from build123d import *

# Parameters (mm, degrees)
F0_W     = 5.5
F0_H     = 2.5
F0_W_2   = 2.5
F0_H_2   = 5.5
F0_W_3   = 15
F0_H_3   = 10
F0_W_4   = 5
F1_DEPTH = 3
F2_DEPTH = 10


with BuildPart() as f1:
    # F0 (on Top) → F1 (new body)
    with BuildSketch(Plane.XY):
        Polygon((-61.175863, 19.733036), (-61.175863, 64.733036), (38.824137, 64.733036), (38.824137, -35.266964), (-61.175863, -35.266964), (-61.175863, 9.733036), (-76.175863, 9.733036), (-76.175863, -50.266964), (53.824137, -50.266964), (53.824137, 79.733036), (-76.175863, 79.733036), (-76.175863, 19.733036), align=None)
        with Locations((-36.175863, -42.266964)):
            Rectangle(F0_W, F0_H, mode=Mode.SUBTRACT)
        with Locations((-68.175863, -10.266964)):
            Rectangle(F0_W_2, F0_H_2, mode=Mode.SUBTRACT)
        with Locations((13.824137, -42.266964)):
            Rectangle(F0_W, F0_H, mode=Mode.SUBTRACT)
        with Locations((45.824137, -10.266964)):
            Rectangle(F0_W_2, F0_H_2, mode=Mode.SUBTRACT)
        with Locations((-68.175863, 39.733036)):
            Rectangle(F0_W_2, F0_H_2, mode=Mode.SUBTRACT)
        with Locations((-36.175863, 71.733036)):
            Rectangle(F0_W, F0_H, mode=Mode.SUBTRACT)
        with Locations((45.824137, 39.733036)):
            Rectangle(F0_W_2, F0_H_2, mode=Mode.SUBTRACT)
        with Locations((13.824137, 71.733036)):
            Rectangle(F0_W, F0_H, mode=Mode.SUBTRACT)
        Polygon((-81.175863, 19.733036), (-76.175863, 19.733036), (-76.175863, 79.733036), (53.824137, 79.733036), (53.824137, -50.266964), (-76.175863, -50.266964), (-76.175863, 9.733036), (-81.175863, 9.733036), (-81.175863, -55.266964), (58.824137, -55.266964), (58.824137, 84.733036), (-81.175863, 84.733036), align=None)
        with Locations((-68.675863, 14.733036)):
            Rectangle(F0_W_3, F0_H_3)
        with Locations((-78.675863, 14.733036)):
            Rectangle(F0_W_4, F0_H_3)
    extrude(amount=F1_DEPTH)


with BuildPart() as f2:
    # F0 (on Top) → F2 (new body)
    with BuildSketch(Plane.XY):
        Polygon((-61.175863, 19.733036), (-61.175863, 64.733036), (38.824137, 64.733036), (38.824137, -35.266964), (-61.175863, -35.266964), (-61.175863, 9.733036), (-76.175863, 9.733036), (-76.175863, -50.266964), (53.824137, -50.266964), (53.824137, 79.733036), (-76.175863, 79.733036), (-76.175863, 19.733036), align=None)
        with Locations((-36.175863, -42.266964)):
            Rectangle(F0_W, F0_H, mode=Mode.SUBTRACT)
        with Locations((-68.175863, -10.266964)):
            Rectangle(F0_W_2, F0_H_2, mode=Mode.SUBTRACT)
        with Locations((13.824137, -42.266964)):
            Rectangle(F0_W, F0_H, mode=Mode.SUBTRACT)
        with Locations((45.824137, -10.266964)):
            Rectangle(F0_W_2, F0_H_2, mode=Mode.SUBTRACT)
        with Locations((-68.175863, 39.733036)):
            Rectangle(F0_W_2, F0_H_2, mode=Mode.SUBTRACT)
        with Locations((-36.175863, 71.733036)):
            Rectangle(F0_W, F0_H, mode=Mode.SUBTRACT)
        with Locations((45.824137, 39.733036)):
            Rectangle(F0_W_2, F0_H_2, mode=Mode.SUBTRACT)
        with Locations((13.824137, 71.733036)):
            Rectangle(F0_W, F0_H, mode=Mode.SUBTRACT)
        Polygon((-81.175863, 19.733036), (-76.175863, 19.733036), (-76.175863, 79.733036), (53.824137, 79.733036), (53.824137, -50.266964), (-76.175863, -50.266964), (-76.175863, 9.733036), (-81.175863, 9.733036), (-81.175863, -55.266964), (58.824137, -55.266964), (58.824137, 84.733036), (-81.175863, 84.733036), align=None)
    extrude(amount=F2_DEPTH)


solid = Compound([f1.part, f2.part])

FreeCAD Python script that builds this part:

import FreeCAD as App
import Part
import Sketcher


def add_polygon(sketch, points):
    """Adds a closed chain of lines whose ends are joined by coincident constraints."""
    first, n = sketch.GeometryCount, len(points)
    for a, b in zip(points, points[1:] + points[:1]):
        sketch.addGeometry(Part.LineSegment(App.Vector(*a, 0), App.Vector(*b, 0)), False)
    for i in range(n):
        sketch.addConstraint(Sketcher.Constraint("Coincident", first + i, 2, first + (i + 1) % n, 1))

doc = App.newDocument("Part")
body = doc.addObject("PartDesign::Body", "Body")

# Sketch on XY plane
sketch1 = body.newObject("Sketcher::SketchObject", "Sketch")
sketch1.AttachmentSupport = (doc.getObject("XY_Plane"), [""])
sketch1.MapMode = "FlatFace"
add_polygon(sketch1, [(-81.175863, -55.266964), (58.824137, -55.266964), (58.824137, 84.733036), (-81.175863, 84.733036)])  # lines 0-3
add_polygon(sketch1, [(-61.175863, 64.733036), (38.824137, 64.733036), (38.824137, -35.266964), (-61.175863, -35.266964)])  # lines 4-7
add_polygon(sketch1, [(-33.425863, -43.516964), (-38.925863, -43.516964), (-38.925863, -41.016964), (-33.425863, -41.016964)])  # lines 8-11
add_polygon(sketch1, [(-66.925863, -13.016964), (-69.425863, -13.016964), (-69.425863, -7.516964), (-66.925863, -7.516964)])  # lines 12-15
add_polygon(sketch1, [(16.574137, -43.516964), (11.074137, -43.516964), (11.074137, -41.016964), (16.574137, -41.016964)])  # lines 16-19
add_polygon(sketch1, [(47.074137, -13.016964), (44.574137, -13.016964), (44.574137, -7.516964), (47.074137, -7.516964)])  # lines 20-23
add_polygon(sketch1, [(-66.925863, 36.983036), (-69.425863, 36.983036), (-69.425863, 42.483036), (-66.925863, 42.483036)])  # lines 24-27
add_polygon(sketch1, [(-33.425863, 70.483036), (-38.925863, 70.483036), (-38.925863, 72.983036), (-33.425863, 72.983036)])  # lines 28-31
add_polygon(sketch1, [(47.074137, 36.983036), (44.574137, 36.983036), (44.574137, 42.483036), (47.074137, 42.483036)])  # lines 32-35
add_polygon(sketch1, [(16.574137, 70.483036), (11.074137, 70.483036), (11.074137, 72.983036), (16.574137, 72.983036)])  # lines 36-39
sketch1.addConstraint(Sketcher.Constraint("Horizontal", 0))
sketch1.addConstraint(Sketcher.Constraint("Vertical", 1))
sketch1.addConstraint(Sketcher.Constraint("Horizontal", 2))
sketch1.addConstraint(Sketcher.Constraint("Vertical", 3))
sketch1.addConstraint(Sketcher.Constraint("Horizontal", 4))
sketch1.addConstraint(Sketcher.Constraint("Vertical", 5))
sketch1.addConstraint(Sketcher.Constraint("Horizontal", 6))
sketch1.addConstraint(Sketcher.Constraint("Vertical", 7))
sketch1.addConstraint(Sketcher.Constraint("Horizontal", 8))
sketch1.addConstraint(Sketcher.Constraint("Vertical", 9))
sketch1.addConstraint(Sketcher.Constraint("Horizontal", 10))
sketch1.addConstraint(Sketcher.Constraint("Vertical", 11))
sketch1.addConstraint(Sketcher.Constraint("Horizontal", 12))
sketch1.addConstraint(Sketcher.Constraint("Vertical", 13))
sketch1.addConstraint(Sketcher.Constraint("Horizontal", 14))
sketch1.addConstraint(Sketcher.Constraint("Vertical", 15))
sketch1.addConstraint(Sketcher.Constraint("Horizontal", 16))
sketch1.addConstraint(Sketcher.Constraint("Vertical", 17))
sketch1.addConstraint(Sketcher.Constraint("Horizontal", 18))
sketch1.addConstraint(Sketcher.Constraint("Vertical", 19))
sketch1.addConstraint(Sketcher.Constraint("Horizontal", 20))
sketch1.addConstraint(Sketcher.Constraint("Vertical", 21))
sketch1.addConstraint(Sketcher.Constraint("Horizontal", 22))
sketch1.addConstraint(Sketcher.Constraint("Vertical", 23))
sketch1.addConstraint(Sketcher.Constraint("Horizontal", 24))
sketch1.addConstraint(Sketcher.Constraint("Vertical", 25))
sketch1.addConstraint(Sketcher.Constraint("Horizontal", 26))
sketch1.addConstraint(Sketcher.Constraint("Vertical", 27))
sketch1.addConstraint(Sketcher.Constraint("Horizontal", 28))
sketch1.addConstraint(Sketcher.Constraint("Vertical", 29))
sketch1.addConstraint(Sketcher.Constraint("Horizontal", 30))
sketch1.addConstraint(Sketcher.Constraint("Vertical", 31))
sketch1.addConstraint(Sketcher.Constraint("Horizontal", 32))
sketch1.addConstraint(Sketcher.Constraint("Vertical", 33))
sketch1.addConstraint(Sketcher.Constraint("Horizontal", 34))
sketch1.addConstraint(Sketcher.Constraint("Vertical", 35))
sketch1.addConstraint(Sketcher.Constraint("Horizontal", 36))
sketch1.addConstraint(Sketcher.Constraint("Vertical", 37))
sketch1.addConstraint(Sketcher.Constraint("Horizontal", 38))
sketch1.addConstraint(Sketcher.Constraint("Vertical", 39))
sketch1.addConstraint(Sketcher.Constraint("Horizontal", 11, 2, 16, 2))
sketch1.addConstraint(Sketcher.Constraint("Horizontal", 10, 2, 17, 2))
sketch1.addConstraint(Sketcher.Constraint("Horizontal", 15, 2, 20, 2))
sketch1.addConstraint(Sketcher.Constraint("Horizontal", 14, 2, 21, 2))
sketch1.addConstraint(Sketcher.Constraint("Horizontal", 27, 2, 32, 2))
sketch1.addConstraint(Sketcher.Constraint("Horizontal", 26, 2, 33, 2))
sketch1.addConstraint(Sketcher.Constraint("Horizontal", 31, 2, 36, 2))
sketch1.addConstraint(Sketcher.Constraint("Horizontal", 30, 2, 37, 2))
sketch1.addConstraint(Sketcher.Constraint("Vertical", 13, 2, 24, 2))
sketch1.addConstraint(Sketcher.Constraint("Vertical", 15, 2, 26, 2))
sketch1.addConstraint(Sketcher.Constraint("Vertical", 9, 2, 28, 2))
sketch1.addConstraint(Sketcher.Constraint("Vertical", 11, 2, 30, 2))
sketch1.addConstraint(Sketcher.Constraint("Vertical", 21, 2, 32, 2))
sketch1.addConstraint(Sketcher.Constraint("Vertical", 23, 2, 34, 2))
sketch1.addConstraint(Sketcher.Constraint("Vertical", 17, 2, 36, 2))
sketch1.addConstraint(Sketcher.Constraint("Vertical", 19, 2, 38, 2))
sketch1.addConstraint(Sketcher.Constraint("Equal", 10, 16))
sketch1.addConstraint(Sketcher.Constraint("Equal", 14, 20))
sketch1.addConstraint(Sketcher.Constraint("Equal", 2, 1))
sketch1.addConstraint(Sketcher.Constraint("Equal", 6, 5))
sketch1.addConstraint(Sketcher.Constraint("Equal", 34, 9))
sketch1.addConstraint(Sketcher.Constraint("Equal", 38, 13))
sketch1.addConstraint(Sketcher.Constraint("Equal", 23, 25))
sketch1.addConstraint(Sketcher.Constraint("Equal", 19, 29))
sketch1.addConstraint(Sketcher.Constraint("DistanceX", 0, 1, 0, 2, 140.0))
sketch1.addConstraint(Sketcher.Constraint("DistanceX", 4, 1, 4, 2, 100.0))
sketch1.addConstraint(Sketcher.Constraint("DistanceX", 8, 2, 8, 1, 5.5))
sketch1.addConstraint(Sketcher.Constraint("DistanceX", 12, 2, 12, 1, 2.5))
sketch1.addConstraint(Sketcher.Constraint("DistanceX", 4, 2, 1, 2, 20.0))
sketch1.addConstraint(Sketcher.Constraint("DistanceY", 4, 2, 1, 2, 20.0))
sketch1.addConstraint(Sketcher.Constraint("DistanceY", 9, 2, 12, 2, 28.0))
sketch1.addConstraint(Sketcher.Constraint("DistanceX", 12, 2, 10, 2, 36.0))
sketch1.addConstraint(Sketcher.Constraint("DistanceX", 8, 2, 16, 2, 50.0))
sketch1.addConstraint(Sketcher.Constraint("DistanceX", 18, 2, 20, 2, 28.0))
sketch1.addConstraint(Sketcher.Constraint("DistanceY", 12, 2, 24, 2, 50.0))
sketch1.addConstraint(Sketcher.Constraint("DistanceY", 26, 2, 28, 2, 28.0))
sketch1.addConstraint(Sketcher.Constraint("DistanceX", 6, 2, 8, 2, 22.25))
sketch1.addConstraint(Sketcher.Constraint("DistanceY", 8, 2, 6, 2, 8.25))
sketch1.addConstraint(Sketcher.Constraint("DistanceX", -1, 1, 0, 2, 58.824137))
sketch1.addConstraint(Sketcher.Constraint("DistanceY", 0, 2, -1, 1, 55.266964))
pad1 = body.newObject("PartDesign::Pad", "Pad")
pad1.Profile = sketch1
pad1.Length = 3
body2 = doc.addObject("PartDesign::Body", "Body001")

# Sketch on XY plane
sketch2 = body2.newObject("Sketcher::SketchObject", "Sketch001")
sketch2.AttachmentSupport = (doc.getObject("XY_Plane001"), [""])
sketch2.MapMode = "FlatFace"
add_polygon(sketch2, [(-61.175863, 19.733036), (-61.175863, 64.733036), (38.824137, 64.733036), (38.824137, -35.266964), (-61.175863, -35.266964), (-61.175863, 9.733036), (-81.175863, 9.733036), (-81.175863, -55.266964), (58.824137, -55.266964), (58.824137, 84.733036), (-81.175863, 84.733036), (-81.175863, 19.733036)])  # lines 0-11
add_polygon(sketch2, [(-33.425863, -43.516964), (-38.925863, -43.516964), (-38.925863, -41.016964), (-33.425863, -41.016964)])  # lines 12-15
add_polygon(sketch2, [(-66.925863, -13.016964), (-69.425863, -13.016964), (-69.425863, -7.516964), (-66.925863, -7.516964)])  # lines 16-19
add_polygon(sketch2, [(16.574137, -43.516964), (11.074137, -43.516964), (11.074137, -41.016964), (16.574137, -41.016964)])  # lines 20-23
add_polygon(sketch2, [(47.074137, -13.016964), (44.574137, -13.016964), (44.574137, -7.516964), (47.074137, -7.516964)])  # lines 24-27
add_polygon(sketch2, [(-66.925863, 36.983036), (-69.425863, 36.983036), (-69.425863, 42.483036), (-66.925863, 42.483036)])  # lines 28-31
add_polygon(sketch2, [(-33.425863, 70.483036), (-38.925863, 70.483036), (-38.925863, 72.983036), (-33.425863, 72.983036)])  # lines 32-35
add_polygon(sketch2, [(47.074137, 36.983036), (44.574137, 36.983036), (44.574137, 42.483036), (47.074137, 42.483036)])  # lines 36-39
add_polygon(sketch2, [(16.574137, 70.483036), (11.074137, 70.483036), (11.074137, 72.983036), (16.574137, 72.983036)])  # lines 40-43
sketch2.addConstraint(Sketcher.Constraint("Vertical", 0))
sketch2.addConstraint(Sketcher.Constraint("Horizontal", 1))
sketch2.addConstraint(Sketcher.Constraint("Vertical", 2))
sketch2.addConstraint(Sketcher.Constraint("Horizontal", 3))
sketch2.addConstraint(Sketcher.Constraint("Vertical", 4))
sketch2.addConstraint(Sketcher.Constraint("Horizontal", 5))
sketch2.addConstraint(Sketcher.Constraint("Vertical", 6))
sketch2.addConstraint(Sketcher.Constraint("Horizontal", 7))
sketch2.addConstraint(Sketcher.Constraint("Vertical", 8))
sketch2.addConstraint(Sketcher.Constraint("Horizontal", 9))
sketch2.addConstraint(Sketcher.Constraint("Vertical", 10))
sketch2.addConstraint(Sketcher.Constraint("Horizontal", 11))
sketch2.addConstraint(Sketcher.Constraint("Horizontal", 12))
sketch2.addConstraint(Sketcher.Constraint("Vertical", 13))
sketch2.addConstraint(Sketcher.Constraint("Horizontal", 14))
sketch2.addConstraint(Sketcher.Constraint("Vertical", 15))
sketch2.addConstraint(Sketcher.Constraint("Horizontal", 16))
sketch2.addConstraint(Sketcher.Constraint("Vertical", 17))
sketch2.addConstraint(Sketcher.Constraint("Horizontal", 18))
sketch2.addConstraint(Sketcher.Constraint("Vertical", 19))
sketch2.addConstraint(Sketcher.Constraint("Horizontal", 20))
sketch2.addConstraint(Sketcher.Constraint("Vertical", 21))
sketch2.addConstraint(Sketcher.Constraint("Horizontal", 22))
sketch2.addConstraint(Sketcher.Constraint("Vertical", 23))
sketch2.addConstraint(Sketcher.Constraint("Horizontal", 24))
sketch2.addConstraint(Sketcher.Constraint("Vertical", 25))
sketch2.addConstraint(Sketcher.Constraint("Horizontal", 26))
sketch2.addConstraint(Sketcher.Constraint("Vertical", 27))
sketch2.addConstraint(Sketcher.Constraint("Horizontal", 28))
sketch2.addConstraint(Sketcher.Constraint("Vertical", 29))
sketch2.addConstraint(Sketcher.Constraint("Horizontal", 30))
sketch2.addConstraint(Sketcher.Constraint("Vertical", 31))
sketch2.addConstraint(Sketcher.Constraint("Horizontal", 32))
sketch2.addConstraint(Sketcher.Constraint("Vertical", 33))
sketch2.addConstraint(Sketcher.Constraint("Horizontal", 34))
sketch2.addConstraint(Sketcher.Constraint("Vertical", 35))
sketch2.addConstraint(Sketcher.Constraint("Horizontal", 36))
sketch2.addConstraint(Sketcher.Constraint("Vertical", 37))
sketch2.addConstraint(Sketcher.Constraint("Horizontal", 38))
sketch2.addConstraint(Sketcher.Constraint("Vertical", 39))
sketch2.addConstraint(Sketcher.Constraint("Horizontal", 40))
sketch2.addConstraint(Sketcher.Constraint("Vertical", 41))
sketch2.addConstraint(Sketcher.Constraint("Horizontal", 42))
sketch2.addConstraint(Sketcher.Constraint("Vertical", 43))
sketch2.addConstraint(Sketcher.Constraint("Horizontal", 15, 2, 20, 2))
sketch2.addConstraint(Sketcher.Constraint("Horizontal", 14, 2, 21, 2))
sketch2.addConstraint(Sketcher.Constraint("Horizontal", 19, 2, 24, 2))
sketch2.addConstraint(Sketcher.Constraint("Horizontal", 18, 2, 25, 2))
sketch2.addConstraint(Sketcher.Constraint("Horizontal", 31, 2, 36, 2))
sketch2.addConstraint(Sketcher.Constraint("Horizontal", 30, 2, 37, 2))
sketch2.addConstraint(Sketcher.Constraint("Horizontal", 35, 2, 40, 2))
sketch2.addConstraint(Sketcher.Constraint("Horizontal", 34, 2, 41, 2))
sketch2.addConstraint(Sketcher.Constraint("Vertical", 0, 2, 3, 2))
sketch2.addConstraint(Sketcher.Constraint("Vertical", 6, 2, 9, 2))
sketch2.addConstraint(Sketcher.Constraint("Vertical", 17, 2, 28, 2))
sketch2.addConstraint(Sketcher.Constraint("Vertical", 19, 2, 30, 2))
sketch2.addConstraint(Sketcher.Constraint("Vertical", 13, 2, 32, 2))
sketch2.addConstraint(Sketcher.Constraint("Vertical", 15, 2, 34, 2))
sketch2.addConstraint(Sketcher.Constraint("Vertical", 25, 2, 36, 2))
sketch2.addConstraint(Sketcher.Constraint("Vertical", 27, 2, 38, 2))
sketch2.addConstraint(Sketcher.Constraint("Vertical", 21, 2, 40, 2))
sketch2.addConstraint(Sketcher.Constraint("Vertical", 23, 2, 42, 2))
sketch2.addConstraint(Sketcher.Constraint("Equal", 14, 20))
sketch2.addConstraint(Sketcher.Constraint("Equal", 18, 24))
sketch2.addConstraint(Sketcher.Constraint("Equal", 3, 2))
sketch2.addConstraint(Sketcher.Constraint("Equal", 0, 4))
sketch2.addConstraint(Sketcher.Constraint("Equal", 9, 8))
sketch2.addConstraint(Sketcher.Constraint("Equal", 6, 10))
sketch2.addConstraint(Sketcher.Constraint("Equal", 38, 13))
sketch2.addConstraint(Sketcher.Constraint("Equal", 42, 17))
sketch2.addConstraint(Sketcher.Constraint("Equal", 27, 29))
sketch2.addConstraint(Sketcher.Constraint("Equal", 23, 33))
sketch2.addConstraint(Sketcher.Constraint("DistanceX", 1, 1, 1, 2, 100.0))
sketch2.addConstraint(Sketcher.Constraint("DistanceX", 5, 2, 5, 1, 20.0))
sketch2.addConstraint(Sketcher.Constraint("DistanceX", 7, 1, 7, 2, 140.0))
sketch2.addConstraint(Sketcher.Constraint("DistanceY", 0, 1, 0, 2, 45.0))
sketch2.addConstraint(Sketcher.Constraint("DistanceX", 12, 2, 12, 1, 5.5))
sketch2.addConstraint(Sketcher.Constraint("DistanceX", 16, 2, 16, 1, 2.5))
sketch2.addConstraint(Sketcher.Constraint("DistanceX", 12, 2, 20, 2, 50.0))
sketch2.addConstraint(Sketcher.Constraint("DistanceX", 22, 2, 24, 2, 28.0))
sketch2.addConstraint(Sketcher.Constraint("DistanceY", 22, 2, 24, 2, 28.0))
sketch2.addConstraint(Sketcher.Constraint("DistanceX", 30, 2, 32, 2, 28.0))
sketch2.addConstraint(Sketcher.Constraint("DistanceY", 30, 2, 32, 2, 28.0))
sketch2.addConstraint(Sketcher.Constraint("DistanceY", 24, 2, 36, 2, 50.0))
sketch2.addConstraint(Sketcher.Constraint("DistanceX", 3, 2, 12, 2, 22.25))
sketch2.addConstraint(Sketcher.Constraint("DistanceY", 12, 2, 3, 2, 8.25))
sketch2.addConstraint(Sketcher.Constraint("DistanceX", 0, 2, -1, 1, 61.175863))
sketch2.addConstraint(Sketcher.Constraint("DistanceY", -1, 1, 0, 2, 64.733036))
pad2 = body2.newObject("PartDesign::Pad", "Pad001")
pad2.Profile = sketch2
pad2.Length = 10

doc.recompute()
